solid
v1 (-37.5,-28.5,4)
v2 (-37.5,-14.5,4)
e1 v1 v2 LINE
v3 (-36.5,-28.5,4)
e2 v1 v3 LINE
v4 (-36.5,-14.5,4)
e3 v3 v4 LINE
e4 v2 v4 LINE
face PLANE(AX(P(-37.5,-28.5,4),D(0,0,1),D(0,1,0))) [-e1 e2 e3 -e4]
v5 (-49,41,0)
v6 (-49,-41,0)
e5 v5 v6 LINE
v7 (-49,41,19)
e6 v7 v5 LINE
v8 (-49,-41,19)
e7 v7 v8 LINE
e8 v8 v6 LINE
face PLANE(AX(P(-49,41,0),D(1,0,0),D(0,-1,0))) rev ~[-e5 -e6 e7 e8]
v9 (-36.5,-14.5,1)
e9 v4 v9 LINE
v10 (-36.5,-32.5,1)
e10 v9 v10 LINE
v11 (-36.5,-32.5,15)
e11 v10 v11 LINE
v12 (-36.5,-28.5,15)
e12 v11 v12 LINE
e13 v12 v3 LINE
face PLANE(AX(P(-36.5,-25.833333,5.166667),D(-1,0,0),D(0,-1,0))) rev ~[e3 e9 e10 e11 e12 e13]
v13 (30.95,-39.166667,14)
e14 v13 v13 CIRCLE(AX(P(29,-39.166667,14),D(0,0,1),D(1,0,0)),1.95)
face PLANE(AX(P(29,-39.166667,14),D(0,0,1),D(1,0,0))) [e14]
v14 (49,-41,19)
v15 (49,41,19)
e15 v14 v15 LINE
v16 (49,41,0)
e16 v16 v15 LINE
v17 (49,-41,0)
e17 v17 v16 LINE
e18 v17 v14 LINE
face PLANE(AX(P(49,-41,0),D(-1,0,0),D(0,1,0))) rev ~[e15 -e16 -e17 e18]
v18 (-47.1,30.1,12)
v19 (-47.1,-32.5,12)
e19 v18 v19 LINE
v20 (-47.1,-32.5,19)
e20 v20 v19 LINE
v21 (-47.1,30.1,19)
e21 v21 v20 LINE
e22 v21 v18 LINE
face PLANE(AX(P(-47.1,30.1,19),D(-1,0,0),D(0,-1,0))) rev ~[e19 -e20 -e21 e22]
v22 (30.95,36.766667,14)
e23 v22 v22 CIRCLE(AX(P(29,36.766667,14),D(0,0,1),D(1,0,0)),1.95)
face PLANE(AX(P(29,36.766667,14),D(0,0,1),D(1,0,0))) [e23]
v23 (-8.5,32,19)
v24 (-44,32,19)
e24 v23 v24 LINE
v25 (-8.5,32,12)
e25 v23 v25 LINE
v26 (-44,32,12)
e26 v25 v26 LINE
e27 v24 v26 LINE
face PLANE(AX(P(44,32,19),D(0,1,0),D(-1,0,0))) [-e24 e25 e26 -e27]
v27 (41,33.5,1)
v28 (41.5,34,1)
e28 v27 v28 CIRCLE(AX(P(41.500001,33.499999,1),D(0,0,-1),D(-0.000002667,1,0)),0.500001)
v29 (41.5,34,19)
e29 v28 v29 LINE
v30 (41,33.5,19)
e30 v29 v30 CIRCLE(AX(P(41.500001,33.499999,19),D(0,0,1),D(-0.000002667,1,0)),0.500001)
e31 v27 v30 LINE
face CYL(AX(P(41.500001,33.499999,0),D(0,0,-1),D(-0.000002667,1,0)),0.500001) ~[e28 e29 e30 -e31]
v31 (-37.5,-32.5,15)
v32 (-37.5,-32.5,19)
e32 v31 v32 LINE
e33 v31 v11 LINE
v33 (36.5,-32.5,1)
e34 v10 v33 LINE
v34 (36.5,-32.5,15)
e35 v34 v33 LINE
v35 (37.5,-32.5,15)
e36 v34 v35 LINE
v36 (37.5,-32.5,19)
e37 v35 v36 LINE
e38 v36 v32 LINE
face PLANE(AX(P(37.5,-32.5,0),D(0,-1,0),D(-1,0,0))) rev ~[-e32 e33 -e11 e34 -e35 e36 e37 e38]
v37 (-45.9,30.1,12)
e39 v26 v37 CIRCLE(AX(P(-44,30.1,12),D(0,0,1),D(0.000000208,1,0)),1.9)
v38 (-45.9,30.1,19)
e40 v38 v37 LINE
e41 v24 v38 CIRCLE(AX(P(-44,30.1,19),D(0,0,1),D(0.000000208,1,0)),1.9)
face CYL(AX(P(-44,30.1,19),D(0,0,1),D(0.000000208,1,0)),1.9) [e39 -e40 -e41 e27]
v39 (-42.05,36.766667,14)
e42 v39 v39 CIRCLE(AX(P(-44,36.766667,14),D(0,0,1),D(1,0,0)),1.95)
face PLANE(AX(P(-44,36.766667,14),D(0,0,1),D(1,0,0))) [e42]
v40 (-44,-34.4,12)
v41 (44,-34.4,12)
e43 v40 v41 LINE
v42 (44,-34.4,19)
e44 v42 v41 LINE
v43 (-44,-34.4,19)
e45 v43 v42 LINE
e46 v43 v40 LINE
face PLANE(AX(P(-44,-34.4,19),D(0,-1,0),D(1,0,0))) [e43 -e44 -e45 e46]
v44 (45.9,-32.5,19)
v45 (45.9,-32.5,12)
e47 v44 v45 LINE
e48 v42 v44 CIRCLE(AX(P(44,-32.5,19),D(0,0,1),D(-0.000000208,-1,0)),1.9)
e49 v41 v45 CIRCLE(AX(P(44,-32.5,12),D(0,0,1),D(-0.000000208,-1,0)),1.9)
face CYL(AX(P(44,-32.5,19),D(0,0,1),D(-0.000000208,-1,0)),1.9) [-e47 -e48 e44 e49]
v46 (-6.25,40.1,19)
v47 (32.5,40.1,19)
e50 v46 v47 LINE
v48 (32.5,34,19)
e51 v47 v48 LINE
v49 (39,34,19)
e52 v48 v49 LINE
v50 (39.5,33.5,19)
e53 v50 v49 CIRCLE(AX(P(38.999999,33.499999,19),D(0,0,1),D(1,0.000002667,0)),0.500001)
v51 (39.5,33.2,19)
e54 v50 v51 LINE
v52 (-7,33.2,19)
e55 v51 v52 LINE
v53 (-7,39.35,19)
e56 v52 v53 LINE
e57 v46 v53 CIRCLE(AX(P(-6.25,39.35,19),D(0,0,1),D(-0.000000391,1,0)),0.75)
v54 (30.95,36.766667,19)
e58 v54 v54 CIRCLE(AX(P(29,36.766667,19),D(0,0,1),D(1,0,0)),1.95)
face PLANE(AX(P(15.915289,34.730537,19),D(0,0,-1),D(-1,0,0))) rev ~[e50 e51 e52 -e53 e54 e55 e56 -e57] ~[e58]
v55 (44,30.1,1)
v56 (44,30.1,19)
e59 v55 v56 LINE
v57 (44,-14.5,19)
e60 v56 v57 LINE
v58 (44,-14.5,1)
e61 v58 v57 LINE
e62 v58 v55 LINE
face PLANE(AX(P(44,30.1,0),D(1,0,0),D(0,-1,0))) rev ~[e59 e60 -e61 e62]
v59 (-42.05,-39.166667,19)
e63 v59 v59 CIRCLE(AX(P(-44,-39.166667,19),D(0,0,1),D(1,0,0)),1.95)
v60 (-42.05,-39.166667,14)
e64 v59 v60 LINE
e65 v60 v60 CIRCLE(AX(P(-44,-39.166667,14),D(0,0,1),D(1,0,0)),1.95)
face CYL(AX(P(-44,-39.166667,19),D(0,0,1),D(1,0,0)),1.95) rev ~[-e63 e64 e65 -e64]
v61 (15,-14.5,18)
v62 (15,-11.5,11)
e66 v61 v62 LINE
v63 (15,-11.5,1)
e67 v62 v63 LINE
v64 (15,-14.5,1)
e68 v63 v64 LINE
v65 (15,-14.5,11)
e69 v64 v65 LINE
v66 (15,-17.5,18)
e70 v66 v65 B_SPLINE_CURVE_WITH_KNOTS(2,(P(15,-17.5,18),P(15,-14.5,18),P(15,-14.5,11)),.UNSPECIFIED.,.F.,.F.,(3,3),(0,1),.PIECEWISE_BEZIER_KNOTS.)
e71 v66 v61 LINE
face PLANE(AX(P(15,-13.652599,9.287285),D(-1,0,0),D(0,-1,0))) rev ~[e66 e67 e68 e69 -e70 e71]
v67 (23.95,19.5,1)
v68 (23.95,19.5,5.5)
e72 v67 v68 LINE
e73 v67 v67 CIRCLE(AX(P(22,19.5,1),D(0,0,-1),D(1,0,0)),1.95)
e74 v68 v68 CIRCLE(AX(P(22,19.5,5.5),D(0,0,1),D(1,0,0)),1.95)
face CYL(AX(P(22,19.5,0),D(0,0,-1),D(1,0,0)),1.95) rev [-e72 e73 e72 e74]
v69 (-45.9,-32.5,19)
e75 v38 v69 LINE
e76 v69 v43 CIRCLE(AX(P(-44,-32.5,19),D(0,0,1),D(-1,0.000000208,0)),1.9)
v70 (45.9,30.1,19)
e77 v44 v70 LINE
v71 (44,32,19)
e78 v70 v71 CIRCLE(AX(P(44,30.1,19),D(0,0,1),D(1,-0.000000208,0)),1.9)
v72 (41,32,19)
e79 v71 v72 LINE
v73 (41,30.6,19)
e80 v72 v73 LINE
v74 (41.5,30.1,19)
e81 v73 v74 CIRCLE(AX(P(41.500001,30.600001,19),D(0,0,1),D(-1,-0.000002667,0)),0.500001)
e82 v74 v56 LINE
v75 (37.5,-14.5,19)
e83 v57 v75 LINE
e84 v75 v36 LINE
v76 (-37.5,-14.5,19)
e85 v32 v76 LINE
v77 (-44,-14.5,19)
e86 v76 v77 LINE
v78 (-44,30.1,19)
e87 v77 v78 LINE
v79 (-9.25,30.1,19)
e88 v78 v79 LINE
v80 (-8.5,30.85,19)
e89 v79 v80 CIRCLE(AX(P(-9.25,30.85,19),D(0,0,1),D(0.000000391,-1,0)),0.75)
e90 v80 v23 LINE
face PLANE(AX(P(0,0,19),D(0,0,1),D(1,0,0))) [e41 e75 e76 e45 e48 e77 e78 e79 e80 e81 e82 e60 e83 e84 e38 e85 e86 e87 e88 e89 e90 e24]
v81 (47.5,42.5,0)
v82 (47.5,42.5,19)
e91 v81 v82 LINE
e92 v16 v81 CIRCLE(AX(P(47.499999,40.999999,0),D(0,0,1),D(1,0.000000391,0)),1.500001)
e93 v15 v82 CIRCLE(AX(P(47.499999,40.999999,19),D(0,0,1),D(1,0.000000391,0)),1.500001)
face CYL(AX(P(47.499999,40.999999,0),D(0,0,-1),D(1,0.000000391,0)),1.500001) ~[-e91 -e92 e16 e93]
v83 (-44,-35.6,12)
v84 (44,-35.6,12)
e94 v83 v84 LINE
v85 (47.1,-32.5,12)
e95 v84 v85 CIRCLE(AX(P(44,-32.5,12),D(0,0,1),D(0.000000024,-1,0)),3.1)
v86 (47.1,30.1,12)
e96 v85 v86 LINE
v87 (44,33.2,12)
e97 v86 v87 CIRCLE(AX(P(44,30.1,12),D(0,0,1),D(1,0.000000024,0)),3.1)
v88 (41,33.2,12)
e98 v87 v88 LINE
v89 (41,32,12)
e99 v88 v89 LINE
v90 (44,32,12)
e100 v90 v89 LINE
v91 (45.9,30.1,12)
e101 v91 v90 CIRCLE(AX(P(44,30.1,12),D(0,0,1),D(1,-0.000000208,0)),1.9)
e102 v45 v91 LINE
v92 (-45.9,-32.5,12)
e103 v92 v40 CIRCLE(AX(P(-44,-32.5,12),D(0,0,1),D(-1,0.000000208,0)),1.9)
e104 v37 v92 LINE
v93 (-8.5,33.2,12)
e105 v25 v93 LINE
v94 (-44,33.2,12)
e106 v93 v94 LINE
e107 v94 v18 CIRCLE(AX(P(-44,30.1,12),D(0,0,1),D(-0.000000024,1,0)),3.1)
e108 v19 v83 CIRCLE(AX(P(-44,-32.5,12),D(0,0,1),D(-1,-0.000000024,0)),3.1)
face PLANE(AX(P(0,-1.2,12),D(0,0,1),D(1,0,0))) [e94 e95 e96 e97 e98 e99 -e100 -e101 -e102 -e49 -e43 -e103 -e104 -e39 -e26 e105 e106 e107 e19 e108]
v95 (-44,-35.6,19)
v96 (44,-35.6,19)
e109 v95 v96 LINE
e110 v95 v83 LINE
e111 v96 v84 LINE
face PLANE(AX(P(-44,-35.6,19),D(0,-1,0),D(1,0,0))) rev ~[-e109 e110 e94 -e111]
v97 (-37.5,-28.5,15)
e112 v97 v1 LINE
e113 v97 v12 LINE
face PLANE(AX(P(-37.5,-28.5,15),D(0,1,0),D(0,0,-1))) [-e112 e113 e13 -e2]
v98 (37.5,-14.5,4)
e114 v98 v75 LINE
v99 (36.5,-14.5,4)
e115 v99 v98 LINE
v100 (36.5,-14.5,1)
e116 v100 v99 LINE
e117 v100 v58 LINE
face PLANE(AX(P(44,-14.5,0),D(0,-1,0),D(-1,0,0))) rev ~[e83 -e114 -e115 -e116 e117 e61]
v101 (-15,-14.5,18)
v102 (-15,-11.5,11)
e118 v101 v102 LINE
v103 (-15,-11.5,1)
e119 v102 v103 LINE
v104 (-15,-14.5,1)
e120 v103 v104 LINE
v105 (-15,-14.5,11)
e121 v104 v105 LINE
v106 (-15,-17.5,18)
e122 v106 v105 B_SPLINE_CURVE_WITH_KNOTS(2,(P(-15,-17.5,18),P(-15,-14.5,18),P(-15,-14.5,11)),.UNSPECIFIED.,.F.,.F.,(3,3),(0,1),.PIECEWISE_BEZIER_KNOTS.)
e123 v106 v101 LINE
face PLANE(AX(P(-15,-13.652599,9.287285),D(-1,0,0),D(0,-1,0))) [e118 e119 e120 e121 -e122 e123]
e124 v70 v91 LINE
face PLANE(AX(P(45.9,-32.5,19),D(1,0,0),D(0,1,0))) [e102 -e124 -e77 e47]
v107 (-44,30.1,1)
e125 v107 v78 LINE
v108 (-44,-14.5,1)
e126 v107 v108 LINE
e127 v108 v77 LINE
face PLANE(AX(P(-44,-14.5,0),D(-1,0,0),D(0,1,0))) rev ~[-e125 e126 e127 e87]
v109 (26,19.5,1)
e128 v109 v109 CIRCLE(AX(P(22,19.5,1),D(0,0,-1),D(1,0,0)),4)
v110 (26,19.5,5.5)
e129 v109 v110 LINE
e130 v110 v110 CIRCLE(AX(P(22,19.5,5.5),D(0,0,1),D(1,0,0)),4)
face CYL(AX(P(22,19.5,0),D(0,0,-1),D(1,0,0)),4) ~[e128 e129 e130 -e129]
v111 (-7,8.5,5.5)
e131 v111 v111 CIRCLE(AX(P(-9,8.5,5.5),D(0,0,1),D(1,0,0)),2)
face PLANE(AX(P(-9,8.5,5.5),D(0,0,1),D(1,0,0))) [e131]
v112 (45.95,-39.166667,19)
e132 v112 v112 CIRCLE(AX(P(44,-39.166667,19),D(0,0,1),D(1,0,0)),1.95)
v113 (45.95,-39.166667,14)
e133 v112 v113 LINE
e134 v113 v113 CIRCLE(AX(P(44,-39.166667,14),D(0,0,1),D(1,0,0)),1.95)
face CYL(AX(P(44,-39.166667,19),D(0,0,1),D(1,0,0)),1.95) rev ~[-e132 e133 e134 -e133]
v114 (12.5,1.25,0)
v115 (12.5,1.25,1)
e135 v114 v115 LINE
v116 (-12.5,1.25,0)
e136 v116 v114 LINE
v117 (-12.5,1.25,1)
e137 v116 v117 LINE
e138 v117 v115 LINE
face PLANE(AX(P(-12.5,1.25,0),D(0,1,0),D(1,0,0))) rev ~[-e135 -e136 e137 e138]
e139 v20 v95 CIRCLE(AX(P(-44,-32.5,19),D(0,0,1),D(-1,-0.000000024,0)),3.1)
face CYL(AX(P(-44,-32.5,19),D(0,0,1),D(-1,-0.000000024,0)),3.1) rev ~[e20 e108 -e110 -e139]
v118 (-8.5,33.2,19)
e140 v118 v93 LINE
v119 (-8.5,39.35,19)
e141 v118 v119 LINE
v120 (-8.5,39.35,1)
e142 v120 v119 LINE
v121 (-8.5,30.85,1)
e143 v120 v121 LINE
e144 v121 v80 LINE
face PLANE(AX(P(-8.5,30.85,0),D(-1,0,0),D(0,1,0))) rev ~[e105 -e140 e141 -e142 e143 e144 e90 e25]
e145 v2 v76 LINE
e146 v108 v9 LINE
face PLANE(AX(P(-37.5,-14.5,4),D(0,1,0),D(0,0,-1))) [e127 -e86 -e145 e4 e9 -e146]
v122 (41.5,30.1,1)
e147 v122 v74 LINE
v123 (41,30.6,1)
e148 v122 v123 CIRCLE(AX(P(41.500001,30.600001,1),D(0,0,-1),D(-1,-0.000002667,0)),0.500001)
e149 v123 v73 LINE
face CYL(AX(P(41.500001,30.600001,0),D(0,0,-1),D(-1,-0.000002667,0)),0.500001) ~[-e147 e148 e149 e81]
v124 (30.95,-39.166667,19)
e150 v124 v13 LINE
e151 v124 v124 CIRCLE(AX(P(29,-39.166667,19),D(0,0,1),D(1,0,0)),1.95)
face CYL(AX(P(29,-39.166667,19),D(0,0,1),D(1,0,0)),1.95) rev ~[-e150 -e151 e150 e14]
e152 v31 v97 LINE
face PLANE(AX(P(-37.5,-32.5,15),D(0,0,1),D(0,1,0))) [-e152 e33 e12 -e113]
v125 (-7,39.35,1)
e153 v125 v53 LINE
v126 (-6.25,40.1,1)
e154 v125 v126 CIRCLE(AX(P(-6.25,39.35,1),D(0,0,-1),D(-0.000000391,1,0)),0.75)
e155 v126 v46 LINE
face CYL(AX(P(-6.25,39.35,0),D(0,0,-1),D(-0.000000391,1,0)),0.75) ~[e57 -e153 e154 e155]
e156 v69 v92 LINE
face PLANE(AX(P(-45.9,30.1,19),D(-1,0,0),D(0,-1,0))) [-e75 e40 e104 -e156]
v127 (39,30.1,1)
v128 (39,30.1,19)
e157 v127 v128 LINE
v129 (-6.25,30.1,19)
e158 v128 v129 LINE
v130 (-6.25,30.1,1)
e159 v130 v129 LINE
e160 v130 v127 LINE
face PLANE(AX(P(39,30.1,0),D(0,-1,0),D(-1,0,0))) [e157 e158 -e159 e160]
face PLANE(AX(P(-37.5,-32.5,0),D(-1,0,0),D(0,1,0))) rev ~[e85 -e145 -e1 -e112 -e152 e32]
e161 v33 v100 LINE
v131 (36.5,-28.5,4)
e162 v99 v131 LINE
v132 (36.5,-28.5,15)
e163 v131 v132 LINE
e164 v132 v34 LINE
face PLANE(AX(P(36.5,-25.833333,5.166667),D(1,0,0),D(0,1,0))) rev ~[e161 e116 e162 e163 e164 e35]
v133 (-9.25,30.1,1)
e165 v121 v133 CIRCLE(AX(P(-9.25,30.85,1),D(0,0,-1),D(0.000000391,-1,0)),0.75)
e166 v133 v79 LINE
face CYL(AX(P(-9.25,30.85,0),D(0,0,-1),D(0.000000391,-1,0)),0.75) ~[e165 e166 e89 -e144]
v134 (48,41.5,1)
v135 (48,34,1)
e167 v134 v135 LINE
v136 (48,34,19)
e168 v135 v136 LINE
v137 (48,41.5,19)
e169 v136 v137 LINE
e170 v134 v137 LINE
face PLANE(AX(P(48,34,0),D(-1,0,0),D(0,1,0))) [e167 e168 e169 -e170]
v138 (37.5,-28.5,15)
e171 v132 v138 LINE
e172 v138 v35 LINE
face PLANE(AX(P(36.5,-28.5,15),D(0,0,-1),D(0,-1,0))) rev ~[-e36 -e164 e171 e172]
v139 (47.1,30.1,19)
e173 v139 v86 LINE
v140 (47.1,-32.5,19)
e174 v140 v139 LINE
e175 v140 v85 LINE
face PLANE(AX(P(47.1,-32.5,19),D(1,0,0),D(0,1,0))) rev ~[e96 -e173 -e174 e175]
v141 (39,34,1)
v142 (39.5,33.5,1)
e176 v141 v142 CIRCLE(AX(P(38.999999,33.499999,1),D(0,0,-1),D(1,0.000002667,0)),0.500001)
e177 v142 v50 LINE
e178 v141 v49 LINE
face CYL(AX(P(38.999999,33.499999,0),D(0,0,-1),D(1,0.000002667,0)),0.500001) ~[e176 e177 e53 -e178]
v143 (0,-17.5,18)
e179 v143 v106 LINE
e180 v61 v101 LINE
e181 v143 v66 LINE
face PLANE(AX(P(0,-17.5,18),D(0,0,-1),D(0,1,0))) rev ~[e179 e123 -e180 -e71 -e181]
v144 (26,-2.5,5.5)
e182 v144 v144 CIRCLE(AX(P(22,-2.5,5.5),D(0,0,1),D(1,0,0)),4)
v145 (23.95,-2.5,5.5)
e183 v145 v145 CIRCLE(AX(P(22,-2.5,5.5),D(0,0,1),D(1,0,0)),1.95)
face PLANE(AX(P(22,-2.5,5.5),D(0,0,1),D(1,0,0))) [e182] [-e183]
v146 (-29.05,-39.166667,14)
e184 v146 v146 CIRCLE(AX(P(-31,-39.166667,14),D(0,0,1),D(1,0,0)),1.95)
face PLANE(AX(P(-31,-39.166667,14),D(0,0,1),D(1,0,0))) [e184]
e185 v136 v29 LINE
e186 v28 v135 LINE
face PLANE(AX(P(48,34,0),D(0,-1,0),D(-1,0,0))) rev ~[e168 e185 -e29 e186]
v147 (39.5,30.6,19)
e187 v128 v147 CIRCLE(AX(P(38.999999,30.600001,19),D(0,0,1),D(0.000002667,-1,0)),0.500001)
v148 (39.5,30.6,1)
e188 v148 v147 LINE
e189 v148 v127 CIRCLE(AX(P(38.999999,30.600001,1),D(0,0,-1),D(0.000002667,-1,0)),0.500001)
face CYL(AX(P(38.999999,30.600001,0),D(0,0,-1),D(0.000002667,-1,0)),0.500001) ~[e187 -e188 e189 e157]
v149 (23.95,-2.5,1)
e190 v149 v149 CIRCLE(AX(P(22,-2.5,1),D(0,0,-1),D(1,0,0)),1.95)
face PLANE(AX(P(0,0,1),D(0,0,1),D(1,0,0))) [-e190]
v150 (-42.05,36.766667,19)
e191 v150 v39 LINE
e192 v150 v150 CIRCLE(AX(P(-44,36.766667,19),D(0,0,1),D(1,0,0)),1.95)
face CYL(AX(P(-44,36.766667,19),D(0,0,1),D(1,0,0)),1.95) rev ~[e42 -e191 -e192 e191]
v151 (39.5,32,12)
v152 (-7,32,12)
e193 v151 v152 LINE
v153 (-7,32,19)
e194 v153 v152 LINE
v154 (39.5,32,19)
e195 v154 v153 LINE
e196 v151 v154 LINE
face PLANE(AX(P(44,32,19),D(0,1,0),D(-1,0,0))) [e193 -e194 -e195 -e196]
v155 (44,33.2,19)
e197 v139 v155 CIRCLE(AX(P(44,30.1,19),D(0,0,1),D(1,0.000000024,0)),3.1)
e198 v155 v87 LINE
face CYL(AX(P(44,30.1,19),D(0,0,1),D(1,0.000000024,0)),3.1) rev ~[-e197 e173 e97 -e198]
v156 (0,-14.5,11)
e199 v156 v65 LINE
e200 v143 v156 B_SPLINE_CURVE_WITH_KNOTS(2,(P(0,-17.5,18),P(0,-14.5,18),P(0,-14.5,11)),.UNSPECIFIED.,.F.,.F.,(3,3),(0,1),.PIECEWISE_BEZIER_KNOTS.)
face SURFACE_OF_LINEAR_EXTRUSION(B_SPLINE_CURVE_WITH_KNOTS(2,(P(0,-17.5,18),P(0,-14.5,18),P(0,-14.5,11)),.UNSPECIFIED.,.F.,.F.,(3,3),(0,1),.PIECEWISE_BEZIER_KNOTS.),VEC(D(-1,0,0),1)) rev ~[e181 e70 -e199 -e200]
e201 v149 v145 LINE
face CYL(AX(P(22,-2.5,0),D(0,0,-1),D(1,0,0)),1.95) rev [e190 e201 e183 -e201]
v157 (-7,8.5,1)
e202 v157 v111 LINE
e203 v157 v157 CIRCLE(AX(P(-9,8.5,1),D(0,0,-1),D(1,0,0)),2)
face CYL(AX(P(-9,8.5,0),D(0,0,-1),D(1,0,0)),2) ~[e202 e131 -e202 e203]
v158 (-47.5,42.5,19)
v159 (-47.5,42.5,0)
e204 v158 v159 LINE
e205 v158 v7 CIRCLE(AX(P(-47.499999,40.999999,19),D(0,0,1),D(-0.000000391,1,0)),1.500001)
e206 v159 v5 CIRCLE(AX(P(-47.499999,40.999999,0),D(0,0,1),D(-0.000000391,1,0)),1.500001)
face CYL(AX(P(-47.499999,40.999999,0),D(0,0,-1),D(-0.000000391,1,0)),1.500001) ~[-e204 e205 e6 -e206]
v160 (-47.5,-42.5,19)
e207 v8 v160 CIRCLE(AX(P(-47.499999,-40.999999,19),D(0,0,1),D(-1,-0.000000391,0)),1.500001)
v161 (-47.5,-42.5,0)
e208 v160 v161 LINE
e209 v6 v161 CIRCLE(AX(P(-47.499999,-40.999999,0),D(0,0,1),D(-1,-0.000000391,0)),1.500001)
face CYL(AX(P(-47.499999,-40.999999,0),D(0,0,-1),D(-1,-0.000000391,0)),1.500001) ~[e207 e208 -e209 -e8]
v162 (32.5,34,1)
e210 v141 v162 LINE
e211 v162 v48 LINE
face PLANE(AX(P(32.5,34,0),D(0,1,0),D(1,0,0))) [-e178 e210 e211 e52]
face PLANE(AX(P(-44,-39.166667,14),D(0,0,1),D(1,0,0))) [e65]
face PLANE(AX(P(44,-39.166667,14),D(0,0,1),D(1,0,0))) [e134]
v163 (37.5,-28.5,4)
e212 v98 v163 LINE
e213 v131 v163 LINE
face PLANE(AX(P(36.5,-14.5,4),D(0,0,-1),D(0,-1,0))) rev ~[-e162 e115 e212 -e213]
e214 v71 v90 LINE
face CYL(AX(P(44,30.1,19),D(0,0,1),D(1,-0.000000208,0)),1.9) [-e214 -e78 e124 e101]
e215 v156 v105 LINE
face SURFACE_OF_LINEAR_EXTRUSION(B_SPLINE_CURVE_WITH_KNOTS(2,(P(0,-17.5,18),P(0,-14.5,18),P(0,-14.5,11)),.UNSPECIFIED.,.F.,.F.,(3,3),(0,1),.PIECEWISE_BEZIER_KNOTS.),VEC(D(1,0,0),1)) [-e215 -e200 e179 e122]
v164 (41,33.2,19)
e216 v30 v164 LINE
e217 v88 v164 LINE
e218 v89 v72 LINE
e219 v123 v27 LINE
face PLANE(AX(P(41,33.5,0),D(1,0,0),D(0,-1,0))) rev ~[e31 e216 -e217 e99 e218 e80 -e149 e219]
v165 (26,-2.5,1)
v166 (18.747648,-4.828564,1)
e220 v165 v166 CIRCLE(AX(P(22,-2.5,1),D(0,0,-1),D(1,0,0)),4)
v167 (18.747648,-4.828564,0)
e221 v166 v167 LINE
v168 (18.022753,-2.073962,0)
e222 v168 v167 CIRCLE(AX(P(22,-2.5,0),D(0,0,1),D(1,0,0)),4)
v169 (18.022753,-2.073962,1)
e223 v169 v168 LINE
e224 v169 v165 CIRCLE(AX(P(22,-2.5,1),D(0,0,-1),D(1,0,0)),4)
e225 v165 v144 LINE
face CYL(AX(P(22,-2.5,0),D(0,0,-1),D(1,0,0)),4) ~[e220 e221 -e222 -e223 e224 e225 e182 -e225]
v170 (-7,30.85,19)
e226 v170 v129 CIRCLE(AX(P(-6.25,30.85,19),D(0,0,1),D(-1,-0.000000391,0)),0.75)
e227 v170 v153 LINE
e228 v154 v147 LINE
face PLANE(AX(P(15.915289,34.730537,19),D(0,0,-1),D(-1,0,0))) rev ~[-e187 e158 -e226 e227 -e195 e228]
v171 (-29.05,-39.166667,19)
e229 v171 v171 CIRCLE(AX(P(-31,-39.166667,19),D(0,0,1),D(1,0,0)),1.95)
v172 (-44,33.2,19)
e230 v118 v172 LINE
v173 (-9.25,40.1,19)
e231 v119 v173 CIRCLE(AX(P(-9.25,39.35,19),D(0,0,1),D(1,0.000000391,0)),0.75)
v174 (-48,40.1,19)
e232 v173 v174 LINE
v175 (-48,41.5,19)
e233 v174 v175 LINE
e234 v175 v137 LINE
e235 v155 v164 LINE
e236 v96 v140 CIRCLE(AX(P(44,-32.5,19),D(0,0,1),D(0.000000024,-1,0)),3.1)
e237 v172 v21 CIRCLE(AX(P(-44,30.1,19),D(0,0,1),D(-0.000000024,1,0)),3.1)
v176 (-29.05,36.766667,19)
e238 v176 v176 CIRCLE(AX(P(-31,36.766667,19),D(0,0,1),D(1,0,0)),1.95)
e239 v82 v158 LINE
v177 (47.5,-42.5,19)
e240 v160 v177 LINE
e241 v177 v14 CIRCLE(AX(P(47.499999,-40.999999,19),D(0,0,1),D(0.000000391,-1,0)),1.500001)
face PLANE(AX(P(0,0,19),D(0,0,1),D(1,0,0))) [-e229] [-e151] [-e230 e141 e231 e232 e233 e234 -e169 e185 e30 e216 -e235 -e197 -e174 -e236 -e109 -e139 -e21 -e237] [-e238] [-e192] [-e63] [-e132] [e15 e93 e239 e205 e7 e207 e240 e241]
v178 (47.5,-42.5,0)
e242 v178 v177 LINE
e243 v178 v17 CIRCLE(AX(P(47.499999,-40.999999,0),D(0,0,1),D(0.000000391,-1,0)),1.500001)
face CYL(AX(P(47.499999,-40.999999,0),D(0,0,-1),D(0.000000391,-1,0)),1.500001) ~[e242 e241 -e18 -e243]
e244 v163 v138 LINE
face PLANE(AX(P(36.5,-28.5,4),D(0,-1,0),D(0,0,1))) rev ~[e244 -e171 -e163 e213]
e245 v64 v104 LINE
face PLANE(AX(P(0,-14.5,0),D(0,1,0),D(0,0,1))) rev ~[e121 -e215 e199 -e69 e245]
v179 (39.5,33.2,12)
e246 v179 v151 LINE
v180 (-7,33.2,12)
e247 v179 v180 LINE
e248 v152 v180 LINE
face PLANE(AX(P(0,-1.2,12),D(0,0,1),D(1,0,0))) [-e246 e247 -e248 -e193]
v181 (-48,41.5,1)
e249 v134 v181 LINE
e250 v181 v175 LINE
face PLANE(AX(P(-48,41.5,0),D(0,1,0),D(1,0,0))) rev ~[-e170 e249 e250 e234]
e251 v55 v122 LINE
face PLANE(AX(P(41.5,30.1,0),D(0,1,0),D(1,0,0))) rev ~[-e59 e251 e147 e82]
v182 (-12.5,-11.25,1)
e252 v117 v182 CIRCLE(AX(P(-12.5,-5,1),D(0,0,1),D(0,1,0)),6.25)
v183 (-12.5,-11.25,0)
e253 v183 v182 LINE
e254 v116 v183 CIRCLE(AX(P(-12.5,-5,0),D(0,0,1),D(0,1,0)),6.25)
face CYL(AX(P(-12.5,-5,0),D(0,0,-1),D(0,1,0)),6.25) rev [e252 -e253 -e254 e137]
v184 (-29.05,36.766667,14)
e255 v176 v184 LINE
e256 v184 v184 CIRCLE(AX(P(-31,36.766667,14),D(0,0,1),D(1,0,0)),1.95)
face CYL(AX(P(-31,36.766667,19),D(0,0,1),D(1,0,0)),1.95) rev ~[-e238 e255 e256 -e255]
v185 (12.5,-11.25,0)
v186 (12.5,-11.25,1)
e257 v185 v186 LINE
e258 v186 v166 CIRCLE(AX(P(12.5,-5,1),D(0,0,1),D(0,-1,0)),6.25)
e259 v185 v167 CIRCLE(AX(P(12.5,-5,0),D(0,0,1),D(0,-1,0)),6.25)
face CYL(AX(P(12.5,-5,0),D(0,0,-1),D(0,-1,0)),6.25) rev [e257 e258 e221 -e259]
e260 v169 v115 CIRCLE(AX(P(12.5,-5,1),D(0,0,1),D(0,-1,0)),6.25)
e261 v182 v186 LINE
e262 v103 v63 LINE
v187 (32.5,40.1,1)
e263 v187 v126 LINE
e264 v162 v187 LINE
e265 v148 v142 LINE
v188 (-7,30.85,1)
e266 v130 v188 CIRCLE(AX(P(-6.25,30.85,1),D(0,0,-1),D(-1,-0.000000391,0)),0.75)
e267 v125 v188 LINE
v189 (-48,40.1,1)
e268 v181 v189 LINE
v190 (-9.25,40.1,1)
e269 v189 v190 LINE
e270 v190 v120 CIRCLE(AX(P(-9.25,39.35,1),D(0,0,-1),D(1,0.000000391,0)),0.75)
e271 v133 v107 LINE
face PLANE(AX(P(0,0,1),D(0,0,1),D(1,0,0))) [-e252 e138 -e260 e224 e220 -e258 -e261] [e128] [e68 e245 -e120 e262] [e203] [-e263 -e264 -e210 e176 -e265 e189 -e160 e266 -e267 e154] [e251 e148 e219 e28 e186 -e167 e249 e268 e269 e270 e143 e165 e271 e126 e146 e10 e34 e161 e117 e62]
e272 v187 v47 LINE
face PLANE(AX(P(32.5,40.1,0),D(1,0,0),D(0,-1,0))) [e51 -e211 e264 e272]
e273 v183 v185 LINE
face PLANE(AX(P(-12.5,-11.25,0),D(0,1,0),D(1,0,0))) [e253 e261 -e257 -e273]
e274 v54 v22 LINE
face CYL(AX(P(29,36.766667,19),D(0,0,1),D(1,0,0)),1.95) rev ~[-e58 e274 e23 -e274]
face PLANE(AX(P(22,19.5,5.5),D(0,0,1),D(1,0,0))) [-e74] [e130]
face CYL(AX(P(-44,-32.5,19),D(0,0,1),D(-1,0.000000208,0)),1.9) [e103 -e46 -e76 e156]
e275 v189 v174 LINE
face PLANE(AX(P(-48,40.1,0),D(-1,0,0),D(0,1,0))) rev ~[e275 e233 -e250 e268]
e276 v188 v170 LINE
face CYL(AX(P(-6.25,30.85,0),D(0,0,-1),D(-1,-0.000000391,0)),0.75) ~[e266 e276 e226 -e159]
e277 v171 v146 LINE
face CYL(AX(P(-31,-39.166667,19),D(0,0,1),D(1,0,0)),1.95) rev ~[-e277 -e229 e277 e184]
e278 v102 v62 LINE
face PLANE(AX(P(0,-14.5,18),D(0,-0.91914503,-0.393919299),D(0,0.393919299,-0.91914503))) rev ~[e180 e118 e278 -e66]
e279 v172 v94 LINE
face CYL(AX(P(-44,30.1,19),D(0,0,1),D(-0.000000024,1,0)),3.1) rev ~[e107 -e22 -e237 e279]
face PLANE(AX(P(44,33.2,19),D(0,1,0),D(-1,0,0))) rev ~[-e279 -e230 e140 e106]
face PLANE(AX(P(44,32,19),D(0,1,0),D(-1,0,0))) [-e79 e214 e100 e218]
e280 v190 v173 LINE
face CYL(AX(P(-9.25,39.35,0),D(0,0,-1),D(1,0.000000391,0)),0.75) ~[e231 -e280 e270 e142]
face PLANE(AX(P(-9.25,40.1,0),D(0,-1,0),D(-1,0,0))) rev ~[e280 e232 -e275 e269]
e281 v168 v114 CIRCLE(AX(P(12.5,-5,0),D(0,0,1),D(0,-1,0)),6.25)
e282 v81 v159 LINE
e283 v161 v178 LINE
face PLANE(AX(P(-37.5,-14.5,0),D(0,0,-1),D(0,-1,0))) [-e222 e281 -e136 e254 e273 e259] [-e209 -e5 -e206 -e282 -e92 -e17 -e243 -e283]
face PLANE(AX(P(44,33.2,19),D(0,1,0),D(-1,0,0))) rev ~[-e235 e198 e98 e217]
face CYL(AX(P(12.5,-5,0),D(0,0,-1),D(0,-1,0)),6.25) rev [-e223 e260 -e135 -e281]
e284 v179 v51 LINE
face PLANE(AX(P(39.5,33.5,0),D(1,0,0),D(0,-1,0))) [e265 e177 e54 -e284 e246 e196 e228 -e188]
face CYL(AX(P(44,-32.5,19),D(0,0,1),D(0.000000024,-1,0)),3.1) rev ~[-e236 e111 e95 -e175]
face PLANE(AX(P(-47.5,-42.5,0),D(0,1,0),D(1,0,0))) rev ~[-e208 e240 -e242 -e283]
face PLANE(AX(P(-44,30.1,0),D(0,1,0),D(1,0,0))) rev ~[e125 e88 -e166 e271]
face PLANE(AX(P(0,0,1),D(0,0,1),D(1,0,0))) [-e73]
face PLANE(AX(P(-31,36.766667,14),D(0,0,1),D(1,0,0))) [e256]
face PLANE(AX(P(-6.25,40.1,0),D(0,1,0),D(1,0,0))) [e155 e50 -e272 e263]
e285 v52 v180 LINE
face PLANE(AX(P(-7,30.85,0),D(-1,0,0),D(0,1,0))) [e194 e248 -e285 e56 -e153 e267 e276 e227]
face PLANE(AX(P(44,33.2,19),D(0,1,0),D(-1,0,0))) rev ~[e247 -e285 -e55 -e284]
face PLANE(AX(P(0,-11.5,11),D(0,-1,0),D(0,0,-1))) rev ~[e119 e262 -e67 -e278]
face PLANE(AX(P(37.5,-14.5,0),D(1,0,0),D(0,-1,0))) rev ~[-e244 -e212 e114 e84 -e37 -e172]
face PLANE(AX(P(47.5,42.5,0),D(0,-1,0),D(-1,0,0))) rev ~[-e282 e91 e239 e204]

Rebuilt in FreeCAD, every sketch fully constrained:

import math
import FreeCAD as App
import Part
import Sketcher
from FreeCAD import Vector


def add_polygon(sketch, points):
    """Adds a closed chain of lines whose ends are joined by coincident constraints."""
    first, n = sketch.GeometryCount, len(points)
    for a, b in zip(points, points[1:] + points[:1]):
        sketch.addGeometry(Part.LineSegment(App.Vector(*a, 0), App.Vector(*b, 0)), False)
    for i in range(n):
        sketch.addConstraint(Sketcher.Constraint("Coincident", first + i, 2, first + (i + 1) % n, 1))

doc = App.newDocument("Part")
body = doc.addObject("PartDesign::Body", "Body")

sketch1 = body.newObject("Sketcher::SketchObject", "Sketch")
sketch1.AttachmentSupport = (doc.getObject("XY_Plane"), [""])
sketch1.MapMode = "FlatFace"
sketch1.addGeometry([
    Part.LineSegment(Vector(-47.5, -42.5, 0), Vector(47.5, -42.5, 0)),
    Part.ArcOfCircle(Part.Circle(Vector(47.5, -41, 0), Vector(0, 0, 1), 1.5), math.radians(-90), math.radians(0)),
    Part.LineSegment(Vector(49, -41, 0), Vector(49, 41, 0)),
    Part.ArcOfCircle(Part.Circle(Vector(47.5, 41, 0), Vector(0, 0, 1), 1.5), math.radians(0), math.radians(90)),
    Part.LineSegment(Vector(47.5, 42.5, 0), Vector(-47.5, 42.5, 0)),
    Part.ArcOfCircle(Part.Circle(Vector(-47.5, 41, 0), Vector(0, 0, 1), 1.5), math.radians(90), math.radians(180)),
    Part.LineSegment(Vector(-49, 41, 0), Vector(-49, -41, 0)),
    Part.ArcOfCircle(Part.Circle(Vector(-47.5, -41, 0), Vector(0, 0, 1), 1.5), math.radians(-180), math.radians(-90)),
    Part.ArcOfCircle(Part.Circle(Vector(-12.5, -5, 0), Vector(0, 0, 1), 6.2), math.radians(90), math.radians(270)),
    Part.LineSegment(Vector(-12.5, 1.2, 0), Vector(12.5, 1.2, 0)),
    Part.ArcOfCircle(Part.Circle(Vector(12.5, -5, 0), Vector(0, 0, 1), 6.2), math.radians(-90), math.radians(90)),
    Part.LineSegment(Vector(12.5, -11.2, 0), Vector(-12.5, -11.2, 0)),
], False)
sketch1.addConstraint([
    Sketcher.Constraint("Tangent", 0, 2, 1, 1),
    Sketcher.Constraint("Tangent", 1, 2, 2, 1),
    Sketcher.Constraint("Tangent", 2, 2, 3, 1),
    Sketcher.Constraint("Tangent", 3, 2, 4, 1),
    Sketcher.Constraint("Tangent", 4, 2, 5, 1),
    Sketcher.Constraint("Tangent", 5, 2, 6, 1),
    Sketcher.Constraint("Tangent", 6, 2, 7, 1),
    Sketcher.Constraint("Tangent", 7, 2, 0, 1),
    Sketcher.Constraint("Tangent", 8, 1, 9, 1),
    Sketcher.Constraint("Tangent", 9, 2, 10, 2),
    Sketcher.Constraint("Tangent", 10, 1, 11, 1),
    Sketcher.Constraint("Tangent", 11, 2, 8, 2),
    Sketcher.Constraint("Horizontal", 0),
    Sketcher.Constraint("Vertical", 2),
    Sketcher.Constraint("Horizontal", 4),
    Sketcher.Constraint("Vertical", 6),
    Sketcher.Constraint("Horizontal", 9),
    Sketcher.Constraint("Horizontal", 11),
    Sketcher.Constraint("Equal", 1, 3),
    Sketcher.Constraint("Equal", 3, 5),
    Sketcher.Constraint("Equal", 5, 7),
    Sketcher.Constraint("Symmetric", 1, 3, 5, 3, -1, 1),
    Sketcher.Constraint("Radius", 1, 1.500001),
    Sketcher.Constraint("DistanceX", 0, 1, 0, 2, 95.0),
    Sketcher.Constraint("DistanceX", 9, 1, 9, 2, 25.0),
    Sketcher.Constraint("DistanceY", 2, 1, 2, 2, 82.0),
    Sketcher.Constraint("Radius", 8, 6.25),
    Sketcher.Constraint("DistanceY", 8, 3, -1, 1, 5.0),
    Sketcher.Constraint("DistanceX", 7, 3, 8, 3, 34.999999),
])
pad1 = body.newObject("PartDesign::Pad", "Pad")
pad1.Profile = sketch1
pad1.Length = 1

sketch2 = body.newObject("Sketcher::SketchObject", "Sketch001")
sketch2.AttachmentSupport = (doc.getObject("XY_Plane"), [""])
sketch2.MapMode = "FlatFace"
sketch2.addGeometry([
    Part.LineSegment(Vector(-47.5, -42.5, 0), Vector(47.5, -42.5, 0)),
    Part.ArcOfCircle(Part.Circle(Vector(47.5, -41, 0), Vector(0, 0, 1), 1.5), math.radians(-90), math.radians(0)),
    Part.LineSegment(Vector(49, -41, 0), Vector(49, 41, 0)),
    Part.ArcOfCircle(Part.Circle(Vector(47.5, 41, 0), Vector(0, 0, 1), 1.5), math.radians(0), math.radians(90)),
    Part.LineSegment(Vector(47.5, 42.5, 0), Vector(-47.5, 42.5, 0)),
    Part.ArcOfCircle(Part.Circle(Vector(-47.5, 41, 0), Vector(0, 0, 1), 1.5), math.radians(90), math.radians(180)),
    Part.LineSegment(Vector(-49, 41, 0), Vector(-49, -41, 0)),
    Part.ArcOfCircle(Part.Circle(Vector(-47.5, -41, 0), Vector(0, 0, 1), 1.5), math.radians(-180), math.radians(-90)),
    Part.LineSegment(Vector(41.5, 30.1, 0), Vector(44, 30.1, 0)),
    Part.LineSegment(Vector(44, 30.1, 0), Vector(44, -14.5, 0)),
    Part.LineSegment(Vector(44, -14.5, 0), Vector(37.5, -14.5, 0)),
    Part.LineSegment(Vector(37.5, -14.5, 0), Vector(37.5, -32.5, 0)),
    Part.LineSegment(Vector(37.5, -32.5, 0), Vector(-37.5, -32.5, 0)),
    Part.LineSegment(Vector(-37.5, -32.5, 0), Vector(-37.5, -14.5, 0)),
    Part.LineSegment(Vector(-37.5, -14.5, 0), Vector(-44, -14.5, 0)),
    Part.LineSegment(Vector(-44, -14.5, 0), Vector(-44, 30.1, 0)),
    Part.LineSegment(Vector(-44, 30.1, 0), Vector(-9.2, 30.1, 0)),
    Part.ArcOfCircle(Part.Circle(Vector(-9.3, 30.9, 0), Vector(0, 0, 1), 0.8), math.radians(-90), math.radians(0)),
    Part.LineSegment(Vector(-8.5, 30.9, 0), Vector(-8.5, 39.4, 0)),
    Part.ArcOfCircle(Part.Circle(Vector(-9.3, 39.3, 0), Vector(0, 0, 1), 0.8), math.radians(0), math.radians(90)),
    Part.LineSegment(Vector(-9.2, 40.1, 0), Vector(-48, 40.1, 0)),
    Part.LineSegment(Vector(-48, 40.1, 0), Vector(-48, 41.5, 0)),
    Part.LineSegment(Vector(-48, 41.5, 0), Vector(48, 41.5, 0)),
    Part.LineSegment(Vector(48, 41.5, 0), Vector(48, 34, 0)),
    Part.LineSegment(Vector(48, 34, 0), Vector(41.5, 34, 0)),
    Part.ArcOfCircle(Part.Circle(Vector(41.5, 33.5, 0), Vector(0, 0, 1), 0.5), math.radians(90), math.radians(180)),
    Part.LineSegment(Vector(41, 33.5, 0), Vector(41, 30.6, 0)),
    Part.ArcOfCircle(Part.Circle(Vector(41.5, 30.6, 0), Vector(0, 0, 1), 0.5), math.radians(-180), math.radians(-90)),
    Part.LineSegment(Vector(-7, 39.4, 0), Vector(-7, 30.9, 0)),
    Part.ArcOfCircle(Part.Circle(Vector(-6.2, 30.9, 0), Vector(0, 0, 1), 0.8), math.radians(-180), math.radians(-90)),
    Part.LineSegment(Vector(-6.2, 30.1, 0), Vector(39, 30.1, 0)),
    Part.ArcOfCircle(Part.Circle(Vector(39, 30.6, 0), Vector(0, 0, 1), 0.5), math.radians(-90), math.radians(0)),
    Part.LineSegment(Vector(39.5, 30.6, 0), Vector(39.5, 33.5, 0)),
    Part.ArcOfCircle(Part.Circle(Vector(39, 33.5, 0), Vector(0, 0, 1), 0.5), math.radians(0), math.radians(90)),
    Part.LineSegment(Vector(39, 34, 0), Vector(32.5, 34, 0)),
    Part.LineSegment(Vector(32.5, 34, 0), Vector(32.5, 40.1, 0)),
    Part.LineSegment(Vector(32.5, 40.1, 0), Vector(-6.2, 40.1, 0)),
    Part.ArcOfCircle(Part.Circle(Vector(-6.2, 39.3, 0), Vector(0, 0, 1), 0.8), math.radians(90), math.radians(180)),
], False)
sketch2.addConstraint([
    Sketcher.Constraint("Tangent", 0, 2, 1, 1),
    Sketcher.Constraint("Tangent", 1, 2, 2, 1),
    Sketcher.Constraint("Tangent", 2, 2, 3, 1),
    Sketcher.Constraint("Tangent", 3, 2, 4, 1),
    Sketcher.Constraint("Tangent", 4, 2, 5, 1),
    Sketcher.Constraint("Tangent", 5, 2, 6, 1),
    Sketcher.Constraint("Tangent", 6, 2, 7, 1),
    Sketcher.Constraint("Tangent", 7, 2, 0, 1),
    Sketcher.Constraint("Coincident", 8, 2, 9, 1),
    Sketcher.Constraint("Coincident", 9, 2, 10, 1),
    Sketcher.Constraint("Coincident", 10, 2, 11, 1),
    Sketcher.Constraint("Coincident", 11, 2, 12, 1),
    Sketcher.Constraint("Coincident", 12, 2, 13, 1),
    Sketcher.Constraint("Coincident", 13, 2, 14, 1),
    Sketcher.Constraint("Coincident", 14, 2, 15, 1),
    Sketcher.Constraint("Coincident", 15, 2, 16, 1),
    Sketcher.Constraint("Tangent", 16, 2, 17, 1),
    Sketcher.Constraint("Tangent", 17, 2, 18, 1),
    Sketcher.Constraint("Tangent", 18, 2, 19, 1),
    Sketcher.Constraint("Tangent", 19, 2, 20, 1),
    Sketcher.Constraint("Coincident", 20, 2, 21, 1),
    Sketcher.Constraint("Coincident", 21, 2, 22, 1),
    Sketcher.Constraint("Coincident", 22, 2, 23, 1),
    Sketcher.Constraint("Coincident", 23, 2, 24, 1),
    Sketcher.Constraint("Coincident", 24, 2, 25, 1),
    Sketcher.Constraint("Coincident", 25, 2, 26, 1),
    Sketcher.Constraint("Coincident", 26, 2, 27, 1),
    Sketcher.Constraint("Coincident", 27, 2, 8, 1),
    Sketcher.Constraint("Tangent", 28, 2, 29, 1),
    Sketcher.Constraint("Tangent", 29, 2, 30, 1),
    Sketcher.Constraint("Coincident", 30, 2, 31, 1),
    Sketcher.Constraint("Coincident", 31, 2, 32, 1),
    Sketcher.Constraint("Coincident", 32, 2, 33, 1),
    Sketcher.Constraint("Coincident", 33, 2, 34, 1),
    Sketcher.Constraint("Coincident", 34, 2, 35, 1),
    Sketcher.Constraint("Coincident", 35, 2, 36, 1),
    Sketcher.Constraint("Tangent", 36, 2, 37, 1),
    Sketcher.Constraint("Tangent", 37, 2, 28, 1),
    Sketcher.Constraint("Horizontal", 0),
    Sketcher.Constraint("Vertical", 2),
    Sketcher.Constraint("Horizontal", 4),
    Sketcher.Constraint("Vertical", 6),
    Sketcher.Constraint("Horizontal", 8),
    Sketcher.Constraint("Vertical", 9),
    Sketcher.Constraint("Horizontal", 10),
    Sketcher.Constraint("Vertical", 11),
    Sketcher.Constraint("Horizontal", 12),
    Sketcher.Constraint("Vertical", 13),
    Sketcher.Constraint("Horizontal", 14),
    Sketcher.Constraint("Vertical", 15),
    Sketcher.Constraint("Horizontal", 16),
    Sketcher.Constraint("Vertical", 18),
    Sketcher.Constraint("Horizontal", 20),
    Sketcher.Constraint("Vertical", 21),
    Sketcher.Constraint("Horizontal", 22),
    Sketcher.Constraint("Vertical", 23),
    Sketcher.Constraint("Horizontal", 24),
    Sketcher.Constraint("Vertical", 26),
    Sketcher.Constraint("Vertical", 28),
    Sketcher.Constraint("Horizontal", 30),
    Sketcher.Constraint("Vertical", 32),
    Sketcher.Constraint("Horizontal", 34),
    Sketcher.Constraint("Vertical", 35),
    Sketcher.Constraint("Horizontal", 36),
    Sketcher.Constraint("Equal", 1, 3),
    Sketcher.Constraint("Equal", 3, 5),
    Sketcher.Constraint("Equal", 5, 7),
    Sketcher.Constraint("Equal", 17, 19),
    Sketcher.Constraint("Equal", 25, 27),
    Sketcher.Constraint("Equal", 19, 29),
    Sketcher.Constraint("Equal", 27, 31),
    Sketcher.Constraint("Equal", 31, 33),
    Sketcher.Constraint("Equal", 29, 37),
    Sketcher.Constraint("Symmetric", 1, 3, 5, 3, -1, 1),
    Sketcher.Constraint("Symmetric", 10, 2, 13, 2, -2),
    Sketcher.Constraint("Symmetric", 8, 2, 15, 2, -2),
    Sketcher.Constraint("Horizontal", 17, 3, 29, 3),
    Sketcher.Constraint("Horizontal", 25, 3, 33, 3),
    Sketcher.Constraint("Horizontal", 19, 3, 37, 3),
    Sketcher.Constraint("Horizontal", 33, 3, 25, 2),
    Sketcher.Constraint("Horizontal", 31, 3, 26, 2),
    Sketcher.Constraint("Horizontal", 26, 2, 31, 2),
    Sketcher.Constraint("Horizontal", 25, 2, 32, 2),
    Sketcher.Constraint("Vertical", 27, 3, 24, 2),
    Sketcher.Constraint("Vertical", 24, 2, 27, 2),
    Sketcher.Constraint("Vertical", 33, 3, 30, 2),
    Sketcher.Constraint("Vertical", 30, 2, 33, 2),
    Sketcher.Constraint("Equal", 14, 24),
    Sketcher.Constraint("Equal", 24, 34),
    Sketcher.Constraint("Equal", 20, 36),
    Sketcher.Constraint("Radius", 1, 1.500001),
    Sketcher.Constraint("Radius", 25, 0.500001),
    Sketcher.Constraint("DistanceX", 0, 1, 0, 2, 95.0),
    Sketcher.Constraint("DistanceX", 12, 2, 12, 1, 75.0),
    Sketcher.Constraint("DistanceX", 22, 1, 22, 2, 96.0),
    Sketcher.Constraint("DistanceY", 2, 1, 2, 2, 82.0),
    Sketcher.Constraint("DistanceY", 11, 2, 11, 1, 18.0),
    Sketcher.Constraint("Radius", 17, 0.75),
    Sketcher.Constraint("DistanceX", 8, 1, 8, 2, 2.5),
    Sketcher.Constraint("DistanceX", 10, 2, 10, 1, 6.5),
    Sketcher.Constraint("DistanceY", 9, 2, 9, 1, 44.6),
    Sketcher.Constraint("DistanceY", 18, 1, 18, 2, 8.5),
    Sketcher.Constraint("DistanceY", 21, 1, 21, 2, 1.4),
    Sketcher.Constraint("DistanceY", 23, 2, 23, 1, 7.5),
    Sketcher.Constraint("DistanceX", -1, 1, 31, 3, 38.999999),
    Sketcher.Constraint("DistanceY", -1, 1, 23, 2, 34.0),
    Sketcher.Constraint("DistanceX", 28, 2, -1, 1, 7.0),
])
pad2 = body.newObject("PartDesign::Pad", "Pad001")
pad2.Profile = sketch2
pad2.Length = 19

sketch3 = body.newObject("Sketcher::SketchObject", "Sketch002")
sketch3.AttachmentSupport = (doc.getObject("XY_Plane"), [""])
sketch3.MapMode = "FlatFace"
sketch3.addGeometry([
    Part.Circle(Vector(22, 19.5, 0), Vector(0, 0, 1), 4),
    Part.Circle(Vector(22, 19.5, 0), Vector(0, 0, 1), 1.9),
    Part.Circle(Vector(22, -2.5, 0), Vector(0, 0, 1), 4),
    Part.Circle(Vector(22, -2.5, 0), Vector(0, 0, 1), 1.9),
    Part.Circle(Vector(-9, 8.5, 0), Vector(0, 0, 1), 2),
], False)
sketch3.addConstraint([
    Sketcher.Constraint("Coincident", 1, 3, 0, 3),
    Sketcher.Constraint("Coincident", 3, 3, 2, 3),
    Sketcher.Constraint("Equal", 0, 2),
    Sketcher.Constraint("Equal", 1, 3),
    Sketcher.Constraint("Vertical", 1, 3, 2, 3),
    Sketcher.Constraint("Diameter", 0, 8.0),
    Sketcher.Constraint("Diameter", 4, 4.0),
    Sketcher.Constraint("Diameter", 1, 3.9),
    Sketcher.Constraint("DistanceX", -1, 1, 0, 3, 22.0),
    Sketcher.Constraint("DistanceX", 4, 3, -1, 1, 9.0),
    Sketcher.Constraint("DistanceY", 2, 3, 0, 3, 22.0),
    Sketcher.Constraint("DistanceY", 4, 3, 0, 3, 11.0),
    Sketcher.Constraint("DistanceY", -1, 1, 0, 3, 19.5),
])
pad3 = body.newObject("PartDesign::Pad", "Pad002")
pad3.Profile = sketch3
pad3.Length = 5.5

sketch4 = body.newObject("Sketcher::SketchObject", "Sketch003")
sketch4.AttachmentSupport = (doc.getObject("YZ_Plane"), [""])
sketch4.MapMode = "FlatFace"
sketch4.addGeometry([
    Part.LineSegment(Vector(-14.5, 11, 0), Vector(-14.5, 0, 0)),
    Part.LineSegment(Vector(-14.5, 0, 0), Vector(-11.5, 0, 0)),
    Part.LineSegment(Vector(-11.5, 0, 0), Vector(-11.5, 11, 0)),
    Part.LineSegment(Vector(-11.5, 11, 0), Vector(-14.5, 18, 0)),
    Part.LineSegment(Vector(-14.5, 18, 0), Vector(-17.5, 18, 0)),
    Part.BSplineCurve([Vector(-17.5, 18, 0), Vector(-14.5, 18, 0), Vector(-14.5, 11, 0)], [3, 3], [0, 1], False, 2, [1, 1, 1], False),
], False)
sketch4.addConstraint([
    Sketcher.Constraint("Block", 5),
    Sketcher.Constraint("Coincident", 0, 2, 1, 1),
    Sketcher.Constraint("Coincident", 1, 2, 2, 1),
    Sketcher.Constraint("Coincident", 2, 2, 3, 1),
    Sketcher.Constraint("Coincident", 3, 2, 4, 1),
    Sketcher.Constraint("Coincident", 4, 2, 5, 1),
    Sketcher.Constraint("Coincident", 5, 2, 0, 1),
    Sketcher.Constraint("Vertical", 0),
    Sketcher.Constraint("Horizontal", 1),
    Sketcher.Constraint("Vertical", 2),
    Sketcher.Constraint("Horizontal", 4),
    Sketcher.Constraint("PointOnObject", 0, 2, -1),
    Sketcher.Constraint("Vertical", 0, 2, 3, 2),
    Sketcher.Constraint("Equal", 1, 4),
    Sketcher.Constraint("Equal", 0, 2),
])
pad4 = body.newObject("PartDesign::Pad", "Pad003")
pad4.Profile = sketch4
pad4.Length = 30
pad4.Midplane = True

sketch5 = body.newObject("Sketcher::SketchObject", "Sketch004")
sketch5.AttachmentSupport = (doc.getObject("XY_Plane"), [""])
sketch5.MapMode = "FlatFace"
sketch5.AttachmentOffset = App.Placement(Vector(0, 0, 19), App.Rotation())
sketch5.addGeometry([
    Part.LineSegment(Vector(47.1, -32.5, 0), Vector(47.1, 30.1, 0)),
    Part.ArcOfCircle(Part.Circle(Vector(44, 30.1, 0), Vector(0, 0, 1), 3.1), math.radians(0), math.radians(90)),
    Part.LineSegment(Vector(44, 33.2, 0), Vector(-44, 33.2, 0)),
    Part.ArcOfCircle(Part.Circle(Vector(-44, 30.1, 0), Vector(0, 0, 1), 3.1), math.radians(90), math.radians(180)),
    Part.LineSegment(Vector(-47.1, 30.1, 0), Vector(-47.1, -32.5, 0)),
    Part.ArcOfCircle(Part.Circle(Vector(-44, -32.5, 0), Vector(0, 0, 1), 3.1), math.radians(-180), math.radians(-90)),
    Part.LineSegment(Vector(-44, -35.6, 0), Vector(44, -35.6, 0)),
    Part.ArcOfCircle(Part.Circle(Vector(44, -32.5, 0), Vector(0, 0, 1), 3.1), math.radians(-90), math.radians(0)),
    Part.LineSegment(Vector(45.9, 30.1, 0), Vector(45.9, -32.5, 0)),
    Part.ArcOfCircle(Part.Circle(Vector(44, -32.5, 0), Vector(0, 0, 1), 1.9), math.radians(-90), math.radians(0)),
    Part.LineSegment(Vector(44, -34.4, 0), Vector(-44, -34.4, 0)),
    Part.ArcOfCircle(Part.Circle(Vector(-44, -32.5, 0), Vector(0, 0, 1), 1.9), math.radians(180), math.radians(270)),
    Part.LineSegment(Vector(-45.9, -32.5, 0), Vector(-45.9, 30.1, 0)),
    Part.ArcOfCircle(Part.Circle(Vector(-44, 30.1, 0), Vector(0, 0, 1), 1.9), math.radians(90), math.radians(180)),
    Part.LineSegment(Vector(-44, 32, 0), Vector(44, 32, 0)),
    Part.ArcOfCircle(Part.Circle(Vector(44, 30.1, 0), Vector(0, 0, 1), 1.9), math.radians(0), math.radians(90)),
], False)
sketch5.addConstraint([
    Sketcher.Constraint("Tangent", 0, 2, 1, 1),
    Sketcher.Constraint("Tangent", 1, 2, 2, 1),
    Sketcher.Constraint("Tangent", 2, 2, 3, 1),
    Sketcher.Constraint("Tangent", 3, 2, 4, 1),
    Sketcher.Constraint("Tangent", 4, 2, 5, 1),
    Sketcher.Constraint("Tangent", 5, 2, 6, 1),
    Sketcher.Constraint("Tangent", 6, 2, 7, 1),
    Sketcher.Constraint("Tangent", 7, 2, 0, 1),
    Sketcher.Constraint("Tangent", 8, 2, 9, 2),
    Sketcher.Constraint("Tangent", 9, 1, 10, 1),
    Sketcher.Constraint("Tangent", 10, 2, 11, 2),
    Sketcher.Constraint("Tangent", 11, 1, 12, 1),
    Sketcher.Constraint("Tangent", 12, 2, 13, 2),
    Sketcher.Constraint("Tangent", 13, 1, 14, 1),
    Sketcher.Constraint("Tangent", 14, 2, 15, 2),
    Sketcher.Constraint("Tangent", 15, 1, 8, 1),
    Sketcher.Constraint("Vertical", 0),
    Sketcher.Constraint("Horizontal", 2),
    Sketcher.Constraint("Vertical", 4),
    Sketcher.Constraint("Horizontal", 6),
    Sketcher.Constraint("Vertical", 8),
    Sketcher.Constraint("Horizontal", 10),
    Sketcher.Constraint("Vertical", 12),
    Sketcher.Constraint("Horizontal", 14),
    Sketcher.Constraint("Coincident", 9, 3, 7, 3),
    Sketcher.Constraint("Coincident", 11, 3, 5, 3),
    Sketcher.Constraint("Coincident", 13, 3, 3, 3),
    Sketcher.Constraint("Equal", 1, 3),
    Sketcher.Constraint("Equal", 3, 5),
    Sketcher.Constraint("Equal", 5, 7),
    Sketcher.Constraint("Equal", 13, 15),
    Sketcher.Constraint("Radius", 1, 3.1),
    Sketcher.Constraint("Radius", 9, 1.9),
    Sketcher.Constraint("DistanceX", 2, 2, 2, 1, 88.0),
    Sketcher.Constraint("DistanceY", 0, 1, 0, 2, 62.6),
    Sketcher.Constraint("DistanceX", -1, 1, 1, 3, 44.0),
    Sketcher.Constraint("DistanceY", -1, 1, 13, 1, 32.0),
])
pocket1 = body.newObject("PartDesign::Pocket", "Pocket")
pocket1.Profile = sketch5
pocket1.Length = 7

sketch6 = body.newObject("Sketcher::SketchObject", "Sketch005")
sketch6.AttachmentSupport = (doc.getObject("YZ_Plane"), [""])
sketch6.MapMode = "FlatFace"
sketch6.AttachmentOffset = App.Placement(Vector(0, 0, 36.5), App.Rotation())
add_polygon(sketch6, [(-14.5, 0), (-14.5, 4), (-28.5, 4), (-28.5, 15), (-32.5, 15), (-32.5, 0)])
sketch6.addConstraint([
    Sketcher.Constraint("Vertical", 0),
    Sketcher.Constraint("Horizontal", 1),
    Sketcher.Constraint("Vertical", 2),
    Sketcher.Constraint("Horizontal", 3),
    Sketcher.Constraint("Vertical", 4),
    Sketcher.Constraint("Horizontal", 5),
    Sketcher.Constraint("PointOnObject", 4, 2, -1),
    Sketcher.Constraint("Equal", 3, 0),
    Sketcher.Constraint("DistanceX", 1, 2, 1, 1, 14.0),
    Sketcher.Constraint("DistanceX", 3, 2, 3, 1, 4.0),
    Sketcher.Constraint("DistanceY", 2, 1, 2, 2, 11.0),
    Sketcher.Constraint("DistanceX", 0, 2, -1, 1, 14.5),
])
pad5 = body.newObject("PartDesign::Pad", "Pad004")
pad5.Profile = sketch6
pad5.Length = 1

sketch7 = body.newObject("Sketcher::SketchObject", "Sketch006")
sketch7.AttachmentSupport = (doc.getObject("XY_Plane"), [""])
sketch7.MapMode = "FlatFace"
sketch7.AttachmentOffset = App.Placement(Vector(0, 0, 19), App.Rotation())
sketch7.addGeometry([
    Part.Circle(Vector(-44, -39.2, 0), Vector(0, 0, 1), 1.9),
    Part.Circle(Vector(44, -39.2, 0), Vector(0, 0, 1), 1.9),
    Part.Circle(Vector(-44, 36.8, 0), Vector(0, 0, 1), 1.9),
    Part.Circle(Vector(29, 36.8, 0), Vector(0, 0, 1), 1.9),
    Part.Circle(Vector(-31, 36.8, 0), Vector(0, 0, 1), 1.9),
    Part.Circle(Vector(29, -39.2, 0), Vector(0, 0, 1), 1.9),
    Part.Circle(Vector(-31, -39.2, 0), Vector(0, 0, 1), 1.9),
], False)
sketch7.addConstraint([
    Sketcher.Constraint("Equal", 0, 1),
    Sketcher.Constraint("Equal", 1, 2),
    Sketcher.Constraint("Equal", 2, 3),
    Sketcher.Constraint("Equal", 3, 4),
    Sketcher.Constraint("Equal", 4, 5),
    Sketcher.Constraint("Equal", 5, 6),
    Sketcher.Constraint("Symmetric", 0, 3, 1, 3, -2),
    Sketcher.Constraint("Horizontal", 2, 3, 3, 3),
    Sketcher.Constraint("Horizontal", 3, 3, 4, 3),
    Sketcher.Constraint("Horizontal", 1, 3, 5, 3),
    Sketcher.Constraint("Horizontal", 5, 3, 6, 3),
    Sketcher.Constraint("Vertical", 0, 3, 2, 3),
    Sketcher.Constraint("Vertical", 3, 3, 5, 3),
    Sketcher.Constraint("Vertical", 4, 3, 6, 3),
    Sketcher.Constraint("Diameter", 0, 3.9),
    Sketcher.Constraint("DistanceX", 0, 3, -1, 1, 44.0),
    Sketcher.Constraint("DistanceX", -1, 1, 3, 3, 29.0),
    Sketcher.Constraint("DistanceX", 4, 3, -1, 1, 31.0),
    Sketcher.Constraint("DistanceY", 0, 3, -1, 1, 39.166667),
    Sketcher.Constraint("DistanceY", -1, 1, 2, 3, 36.766667),
])
pocket2 = body.newObject("PartDesign::Pocket", "Pocket001")
pocket2.Profile = sketch7
pocket2.Length = 5

sketch8 = body.newObject("Sketcher::SketchObject", "Sketch007")
sketch8.AttachmentSupport = (doc.getObject("YZ_Plane"), [""])
sketch8.MapMode = "FlatFace"
sketch8.AttachmentOffset = App.Placement(Vector(0, 0, -37.5), App.Rotation())
add_polygon(sketch8, [(-32.5, 15), (-32.5, 0), (-14.5, 0), (-14.5, 4), (-28.5, 4), (-28.5, 15)])
sketch8.addConstraint([
    Sketcher.Constraint("Vertical", 0),
    Sketcher.Constraint("Horizontal", 1),
    Sketcher.Constraint("Vertical", 2),
    Sketcher.Constraint("Horizontal", 3),
    Sketcher.Constraint("Vertical", 4),
    Sketcher.Constraint("Horizontal", 5),
    Sketcher.Constraint("PointOnObject", 0, 2, -1),
    Sketcher.Constraint("Equal", 5, 2),
    Sketcher.Constraint("DistanceX", 1, 1, 1, 2, 18.0),
    Sketcher.Constraint("DistanceX", 3, 2, 3, 1, 14.0),
    Sketcher.Constraint("DistanceY", 0, 2, 0, 1, 15.0),
    Sketcher.Constraint("DistanceX", 0, 2, -1, 1, 32.5),
])
pad6 = body.newObject("PartDesign::Pad", "Pad005")
pad6.Profile = sketch8
pad6.Length = 1

doc.recompute()
